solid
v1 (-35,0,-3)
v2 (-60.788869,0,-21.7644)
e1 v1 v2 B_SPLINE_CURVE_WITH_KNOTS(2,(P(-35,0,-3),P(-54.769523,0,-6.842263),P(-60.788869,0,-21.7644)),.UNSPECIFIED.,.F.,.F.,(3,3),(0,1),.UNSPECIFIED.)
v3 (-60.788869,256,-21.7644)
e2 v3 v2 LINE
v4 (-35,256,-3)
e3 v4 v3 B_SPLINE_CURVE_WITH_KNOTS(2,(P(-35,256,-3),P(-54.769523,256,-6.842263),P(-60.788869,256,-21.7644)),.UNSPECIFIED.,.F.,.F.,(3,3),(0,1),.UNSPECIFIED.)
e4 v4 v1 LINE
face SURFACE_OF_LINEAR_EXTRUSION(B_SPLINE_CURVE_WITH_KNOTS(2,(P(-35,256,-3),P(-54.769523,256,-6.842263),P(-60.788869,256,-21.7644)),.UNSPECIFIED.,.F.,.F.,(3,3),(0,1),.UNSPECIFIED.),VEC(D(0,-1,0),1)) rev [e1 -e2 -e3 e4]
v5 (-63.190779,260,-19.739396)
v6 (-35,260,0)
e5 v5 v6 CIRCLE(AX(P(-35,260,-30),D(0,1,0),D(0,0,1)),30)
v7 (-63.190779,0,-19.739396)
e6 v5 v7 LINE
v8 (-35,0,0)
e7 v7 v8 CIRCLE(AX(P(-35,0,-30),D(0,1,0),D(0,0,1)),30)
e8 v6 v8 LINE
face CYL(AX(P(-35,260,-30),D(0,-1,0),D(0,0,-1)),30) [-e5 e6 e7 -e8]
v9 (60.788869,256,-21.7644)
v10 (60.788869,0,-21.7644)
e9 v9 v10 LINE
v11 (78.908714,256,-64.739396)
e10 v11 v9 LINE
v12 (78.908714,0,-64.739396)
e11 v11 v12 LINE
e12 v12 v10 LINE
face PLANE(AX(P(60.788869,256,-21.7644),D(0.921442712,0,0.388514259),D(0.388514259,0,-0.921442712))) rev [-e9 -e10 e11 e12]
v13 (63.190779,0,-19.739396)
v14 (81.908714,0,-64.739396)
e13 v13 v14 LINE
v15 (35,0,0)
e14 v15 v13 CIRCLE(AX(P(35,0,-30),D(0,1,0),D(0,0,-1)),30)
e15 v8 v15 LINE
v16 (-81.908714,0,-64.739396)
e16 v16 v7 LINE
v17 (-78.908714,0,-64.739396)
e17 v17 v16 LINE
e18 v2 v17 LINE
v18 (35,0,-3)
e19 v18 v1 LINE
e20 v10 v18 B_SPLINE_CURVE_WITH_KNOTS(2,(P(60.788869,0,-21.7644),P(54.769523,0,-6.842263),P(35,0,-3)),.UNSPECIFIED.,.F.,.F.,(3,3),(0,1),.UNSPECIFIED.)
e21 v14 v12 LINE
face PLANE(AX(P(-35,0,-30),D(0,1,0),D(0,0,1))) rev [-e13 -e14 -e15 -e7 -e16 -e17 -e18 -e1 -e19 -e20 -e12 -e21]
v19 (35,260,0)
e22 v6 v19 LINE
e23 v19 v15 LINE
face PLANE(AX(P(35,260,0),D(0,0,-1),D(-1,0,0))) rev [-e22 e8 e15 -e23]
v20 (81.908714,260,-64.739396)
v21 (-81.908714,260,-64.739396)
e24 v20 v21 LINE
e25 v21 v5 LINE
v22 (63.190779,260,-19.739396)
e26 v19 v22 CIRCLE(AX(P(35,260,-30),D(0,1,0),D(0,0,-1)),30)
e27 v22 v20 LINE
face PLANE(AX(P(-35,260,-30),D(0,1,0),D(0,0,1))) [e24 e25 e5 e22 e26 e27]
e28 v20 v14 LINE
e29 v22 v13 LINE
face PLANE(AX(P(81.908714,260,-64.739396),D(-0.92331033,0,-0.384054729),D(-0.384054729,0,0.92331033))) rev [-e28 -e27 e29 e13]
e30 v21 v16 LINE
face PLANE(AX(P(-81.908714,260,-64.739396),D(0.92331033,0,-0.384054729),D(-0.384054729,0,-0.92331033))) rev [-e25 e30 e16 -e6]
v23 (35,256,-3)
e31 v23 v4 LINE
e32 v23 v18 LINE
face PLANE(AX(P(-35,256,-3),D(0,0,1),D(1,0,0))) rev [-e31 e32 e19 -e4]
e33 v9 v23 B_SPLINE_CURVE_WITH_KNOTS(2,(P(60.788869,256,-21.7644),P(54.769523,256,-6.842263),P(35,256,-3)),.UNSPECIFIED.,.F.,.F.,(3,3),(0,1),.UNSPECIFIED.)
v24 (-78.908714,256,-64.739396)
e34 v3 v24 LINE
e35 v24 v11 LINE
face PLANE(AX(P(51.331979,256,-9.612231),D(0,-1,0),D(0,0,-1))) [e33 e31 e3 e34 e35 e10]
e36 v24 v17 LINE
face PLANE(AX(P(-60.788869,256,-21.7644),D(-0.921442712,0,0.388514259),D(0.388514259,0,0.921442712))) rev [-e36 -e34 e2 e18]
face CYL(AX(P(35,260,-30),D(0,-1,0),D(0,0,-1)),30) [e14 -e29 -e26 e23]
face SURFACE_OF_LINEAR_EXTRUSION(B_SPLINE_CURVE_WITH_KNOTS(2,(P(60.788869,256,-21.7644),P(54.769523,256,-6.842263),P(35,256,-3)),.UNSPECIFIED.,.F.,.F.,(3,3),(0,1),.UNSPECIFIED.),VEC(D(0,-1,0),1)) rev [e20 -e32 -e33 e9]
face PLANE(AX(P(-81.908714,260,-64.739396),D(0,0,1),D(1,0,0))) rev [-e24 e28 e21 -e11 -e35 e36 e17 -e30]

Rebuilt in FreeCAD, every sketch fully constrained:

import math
import FreeCAD as App
import Part
import Sketcher
from FreeCAD import Vector
Q = App.Units.Quantity

doc = App.newDocument("Part")
body = doc.addObject("PartDesign::Body", "Body")

# Sketch on XZ plane
sketch1 = doc.addObject("Sketcher::SketchObject", "Sketch")
body.addObject(sketch1)
sketch1.AttachmentSupport = (doc.XZ_Plane, [""])
sketch1.MapMode = "FlatFace"
sketch1.addGeometry([
    Part.LineSegment(Vector(-35, 0, 0), Vector(35, 0, 0)),  # 0
    Part.ArcOfCircle(Part.Circle(Vector(35, -30, 0), Vector(0, 0, 1), 30), math.radians(20), math.radians(90)),  # 1
    Part.LineSegment(Vector(63, -20, 0), Vector(82, -65, 0)),  # 2
    Part.LineSegment(Vector(82, -65, 0), Vector(-82, -65, 0)),  # 3
    Part.LineSegment(Vector(-82, -65, 0), Vector(-63, -20, 0)),  # 4
    Part.ArcOfCircle(Part.Circle(Vector(-35, -30, 0), Vector(0, 0, 1), 30), math.radians(90), math.radians(160)),  # 5
], False)
sketch1.addConstraint([
    Sketcher.Constraint("Tangent", 0, 2, 1, 2),
    Sketcher.Constraint("Coincident", 1, 1, 2, 1),
    Sketcher.Constraint("Coincident", 2, 2, 3, 1),
    Sketcher.Constraint("Coincident", 3, 2, 4, 1),
    Sketcher.Constraint("Coincident", 4, 2, 5, 2),
    Sketcher.Constraint("Tangent", 5, 1, 0, 1),
    Sketcher.Constraint("Horizontal", 0),
    Sketcher.Constraint("Horizontal", 3),
    Sketcher.Constraint("Equal", 1, 5),
    Sketcher.Constraint("Symmetric", 0, 2, 5, 1, -1, 1),
    Sketcher.Constraint("Horizontal", 1, 1, 4, 2),
    Sketcher.Constraint("Equal", 2, 4),
    Sketcher.Constraint("Radius", 1, Q("30 mm")),
    Sketcher.Constraint("DistanceX", 0, 1, 0, 2, Q("70 mm")),
    Sketcher.Constraint("DistanceY", 2, 2, 1, 1, Q("45 mm")),
    Sketcher.Constraint("DistanceX", 3, 2, 3, 1, Q("163.817427 mm")),
    Sketcher.Constraint("DistanceX", -1, 1, 1, 1, Q("63.190779 mm")),
])
pad1 = doc.addObject("PartDesign::Pad", "Pad")
body.addObject(pad1)
pad1.Profile = sketch1
pad1.Length = 260
pad1.Reversed = True

# Sketch on XZ plane
sketch2 = doc.addObject("Sketcher::SketchObject", "Sketch001")
body.addObject(sketch2)
sketch2.AttachmentSupport = (doc.XZ_Plane, [""])
sketch2.MapMode = "FlatFace"
sketch2.addGeometry([
    Part.LineSegment(Vector(-78.908714, -64.739396, 0), Vector(78.908714, -64.739396, 0)),  # 0
    Part.LineSegment(Vector(78.908714, -64.739396, 0), Vector(60.788869, -21.7644, 0)),  # 1
    Part.BSplineCurve([Vector(35, -3, 0), Vector(54.769523, -6.842263, 0), Vector(60.788869, -21.7644, 0)], [3, 3], [0, 1], False, 2, [1, 1, 1], False),  # 2
    Part.LineSegment(Vector(35, -3, 0), Vector(-35, -3, 0)),  # 3
    Part.BSplineCurve([Vector(-35, -3, 0), Vector(-54.769523, -6.842263, 0), Vector(-60.788869, -21.7644, 0)], [3, 3], [0, 1], False, 2, [1, 1, 1], False),  # 4
    Part.LineSegment(Vector(-60.788869, -21.7644, 0), Vector(-78.908714, -64.739396, 0)),  # 5
], False)
sketch2.addConstraint([
    Sketcher.Constraint("Block", 2),
    Sketcher.Constraint("Block", 4),
    Sketcher.Constraint("Coincident", 0, 2, 1, 1),
    Sketcher.Constraint("Coincident", 1, 2, 2, 2),
    Sketcher.Constraint("Coincident", 2, 1, 3, 1),
    Sketcher.Constraint("Coincident", 3, 2, 4, 1),
    Sketcher.Constraint("Coincident", 4, 2, 5, 1),
    Sketcher.Constraint("Coincident", 5, 2, 0, 1),
    Sketcher.Constraint("Horizontal", 0),
    Sketcher.Constraint("Equal", 1, 5),
    Sketcher.Constraint("DistanceX", 0, 1, 0, 2, Q("157.817427 mm")),
    Sketcher.Constraint("Distance", 1, Q("46.638814 mm")),
])
pocket1 = doc.addObject("PartDesign::Pocket", "Pocket")
body.addObject(pocket1)
pocket1.Profile = sketch2
pocket1.Length = 256

doc.recompute()
